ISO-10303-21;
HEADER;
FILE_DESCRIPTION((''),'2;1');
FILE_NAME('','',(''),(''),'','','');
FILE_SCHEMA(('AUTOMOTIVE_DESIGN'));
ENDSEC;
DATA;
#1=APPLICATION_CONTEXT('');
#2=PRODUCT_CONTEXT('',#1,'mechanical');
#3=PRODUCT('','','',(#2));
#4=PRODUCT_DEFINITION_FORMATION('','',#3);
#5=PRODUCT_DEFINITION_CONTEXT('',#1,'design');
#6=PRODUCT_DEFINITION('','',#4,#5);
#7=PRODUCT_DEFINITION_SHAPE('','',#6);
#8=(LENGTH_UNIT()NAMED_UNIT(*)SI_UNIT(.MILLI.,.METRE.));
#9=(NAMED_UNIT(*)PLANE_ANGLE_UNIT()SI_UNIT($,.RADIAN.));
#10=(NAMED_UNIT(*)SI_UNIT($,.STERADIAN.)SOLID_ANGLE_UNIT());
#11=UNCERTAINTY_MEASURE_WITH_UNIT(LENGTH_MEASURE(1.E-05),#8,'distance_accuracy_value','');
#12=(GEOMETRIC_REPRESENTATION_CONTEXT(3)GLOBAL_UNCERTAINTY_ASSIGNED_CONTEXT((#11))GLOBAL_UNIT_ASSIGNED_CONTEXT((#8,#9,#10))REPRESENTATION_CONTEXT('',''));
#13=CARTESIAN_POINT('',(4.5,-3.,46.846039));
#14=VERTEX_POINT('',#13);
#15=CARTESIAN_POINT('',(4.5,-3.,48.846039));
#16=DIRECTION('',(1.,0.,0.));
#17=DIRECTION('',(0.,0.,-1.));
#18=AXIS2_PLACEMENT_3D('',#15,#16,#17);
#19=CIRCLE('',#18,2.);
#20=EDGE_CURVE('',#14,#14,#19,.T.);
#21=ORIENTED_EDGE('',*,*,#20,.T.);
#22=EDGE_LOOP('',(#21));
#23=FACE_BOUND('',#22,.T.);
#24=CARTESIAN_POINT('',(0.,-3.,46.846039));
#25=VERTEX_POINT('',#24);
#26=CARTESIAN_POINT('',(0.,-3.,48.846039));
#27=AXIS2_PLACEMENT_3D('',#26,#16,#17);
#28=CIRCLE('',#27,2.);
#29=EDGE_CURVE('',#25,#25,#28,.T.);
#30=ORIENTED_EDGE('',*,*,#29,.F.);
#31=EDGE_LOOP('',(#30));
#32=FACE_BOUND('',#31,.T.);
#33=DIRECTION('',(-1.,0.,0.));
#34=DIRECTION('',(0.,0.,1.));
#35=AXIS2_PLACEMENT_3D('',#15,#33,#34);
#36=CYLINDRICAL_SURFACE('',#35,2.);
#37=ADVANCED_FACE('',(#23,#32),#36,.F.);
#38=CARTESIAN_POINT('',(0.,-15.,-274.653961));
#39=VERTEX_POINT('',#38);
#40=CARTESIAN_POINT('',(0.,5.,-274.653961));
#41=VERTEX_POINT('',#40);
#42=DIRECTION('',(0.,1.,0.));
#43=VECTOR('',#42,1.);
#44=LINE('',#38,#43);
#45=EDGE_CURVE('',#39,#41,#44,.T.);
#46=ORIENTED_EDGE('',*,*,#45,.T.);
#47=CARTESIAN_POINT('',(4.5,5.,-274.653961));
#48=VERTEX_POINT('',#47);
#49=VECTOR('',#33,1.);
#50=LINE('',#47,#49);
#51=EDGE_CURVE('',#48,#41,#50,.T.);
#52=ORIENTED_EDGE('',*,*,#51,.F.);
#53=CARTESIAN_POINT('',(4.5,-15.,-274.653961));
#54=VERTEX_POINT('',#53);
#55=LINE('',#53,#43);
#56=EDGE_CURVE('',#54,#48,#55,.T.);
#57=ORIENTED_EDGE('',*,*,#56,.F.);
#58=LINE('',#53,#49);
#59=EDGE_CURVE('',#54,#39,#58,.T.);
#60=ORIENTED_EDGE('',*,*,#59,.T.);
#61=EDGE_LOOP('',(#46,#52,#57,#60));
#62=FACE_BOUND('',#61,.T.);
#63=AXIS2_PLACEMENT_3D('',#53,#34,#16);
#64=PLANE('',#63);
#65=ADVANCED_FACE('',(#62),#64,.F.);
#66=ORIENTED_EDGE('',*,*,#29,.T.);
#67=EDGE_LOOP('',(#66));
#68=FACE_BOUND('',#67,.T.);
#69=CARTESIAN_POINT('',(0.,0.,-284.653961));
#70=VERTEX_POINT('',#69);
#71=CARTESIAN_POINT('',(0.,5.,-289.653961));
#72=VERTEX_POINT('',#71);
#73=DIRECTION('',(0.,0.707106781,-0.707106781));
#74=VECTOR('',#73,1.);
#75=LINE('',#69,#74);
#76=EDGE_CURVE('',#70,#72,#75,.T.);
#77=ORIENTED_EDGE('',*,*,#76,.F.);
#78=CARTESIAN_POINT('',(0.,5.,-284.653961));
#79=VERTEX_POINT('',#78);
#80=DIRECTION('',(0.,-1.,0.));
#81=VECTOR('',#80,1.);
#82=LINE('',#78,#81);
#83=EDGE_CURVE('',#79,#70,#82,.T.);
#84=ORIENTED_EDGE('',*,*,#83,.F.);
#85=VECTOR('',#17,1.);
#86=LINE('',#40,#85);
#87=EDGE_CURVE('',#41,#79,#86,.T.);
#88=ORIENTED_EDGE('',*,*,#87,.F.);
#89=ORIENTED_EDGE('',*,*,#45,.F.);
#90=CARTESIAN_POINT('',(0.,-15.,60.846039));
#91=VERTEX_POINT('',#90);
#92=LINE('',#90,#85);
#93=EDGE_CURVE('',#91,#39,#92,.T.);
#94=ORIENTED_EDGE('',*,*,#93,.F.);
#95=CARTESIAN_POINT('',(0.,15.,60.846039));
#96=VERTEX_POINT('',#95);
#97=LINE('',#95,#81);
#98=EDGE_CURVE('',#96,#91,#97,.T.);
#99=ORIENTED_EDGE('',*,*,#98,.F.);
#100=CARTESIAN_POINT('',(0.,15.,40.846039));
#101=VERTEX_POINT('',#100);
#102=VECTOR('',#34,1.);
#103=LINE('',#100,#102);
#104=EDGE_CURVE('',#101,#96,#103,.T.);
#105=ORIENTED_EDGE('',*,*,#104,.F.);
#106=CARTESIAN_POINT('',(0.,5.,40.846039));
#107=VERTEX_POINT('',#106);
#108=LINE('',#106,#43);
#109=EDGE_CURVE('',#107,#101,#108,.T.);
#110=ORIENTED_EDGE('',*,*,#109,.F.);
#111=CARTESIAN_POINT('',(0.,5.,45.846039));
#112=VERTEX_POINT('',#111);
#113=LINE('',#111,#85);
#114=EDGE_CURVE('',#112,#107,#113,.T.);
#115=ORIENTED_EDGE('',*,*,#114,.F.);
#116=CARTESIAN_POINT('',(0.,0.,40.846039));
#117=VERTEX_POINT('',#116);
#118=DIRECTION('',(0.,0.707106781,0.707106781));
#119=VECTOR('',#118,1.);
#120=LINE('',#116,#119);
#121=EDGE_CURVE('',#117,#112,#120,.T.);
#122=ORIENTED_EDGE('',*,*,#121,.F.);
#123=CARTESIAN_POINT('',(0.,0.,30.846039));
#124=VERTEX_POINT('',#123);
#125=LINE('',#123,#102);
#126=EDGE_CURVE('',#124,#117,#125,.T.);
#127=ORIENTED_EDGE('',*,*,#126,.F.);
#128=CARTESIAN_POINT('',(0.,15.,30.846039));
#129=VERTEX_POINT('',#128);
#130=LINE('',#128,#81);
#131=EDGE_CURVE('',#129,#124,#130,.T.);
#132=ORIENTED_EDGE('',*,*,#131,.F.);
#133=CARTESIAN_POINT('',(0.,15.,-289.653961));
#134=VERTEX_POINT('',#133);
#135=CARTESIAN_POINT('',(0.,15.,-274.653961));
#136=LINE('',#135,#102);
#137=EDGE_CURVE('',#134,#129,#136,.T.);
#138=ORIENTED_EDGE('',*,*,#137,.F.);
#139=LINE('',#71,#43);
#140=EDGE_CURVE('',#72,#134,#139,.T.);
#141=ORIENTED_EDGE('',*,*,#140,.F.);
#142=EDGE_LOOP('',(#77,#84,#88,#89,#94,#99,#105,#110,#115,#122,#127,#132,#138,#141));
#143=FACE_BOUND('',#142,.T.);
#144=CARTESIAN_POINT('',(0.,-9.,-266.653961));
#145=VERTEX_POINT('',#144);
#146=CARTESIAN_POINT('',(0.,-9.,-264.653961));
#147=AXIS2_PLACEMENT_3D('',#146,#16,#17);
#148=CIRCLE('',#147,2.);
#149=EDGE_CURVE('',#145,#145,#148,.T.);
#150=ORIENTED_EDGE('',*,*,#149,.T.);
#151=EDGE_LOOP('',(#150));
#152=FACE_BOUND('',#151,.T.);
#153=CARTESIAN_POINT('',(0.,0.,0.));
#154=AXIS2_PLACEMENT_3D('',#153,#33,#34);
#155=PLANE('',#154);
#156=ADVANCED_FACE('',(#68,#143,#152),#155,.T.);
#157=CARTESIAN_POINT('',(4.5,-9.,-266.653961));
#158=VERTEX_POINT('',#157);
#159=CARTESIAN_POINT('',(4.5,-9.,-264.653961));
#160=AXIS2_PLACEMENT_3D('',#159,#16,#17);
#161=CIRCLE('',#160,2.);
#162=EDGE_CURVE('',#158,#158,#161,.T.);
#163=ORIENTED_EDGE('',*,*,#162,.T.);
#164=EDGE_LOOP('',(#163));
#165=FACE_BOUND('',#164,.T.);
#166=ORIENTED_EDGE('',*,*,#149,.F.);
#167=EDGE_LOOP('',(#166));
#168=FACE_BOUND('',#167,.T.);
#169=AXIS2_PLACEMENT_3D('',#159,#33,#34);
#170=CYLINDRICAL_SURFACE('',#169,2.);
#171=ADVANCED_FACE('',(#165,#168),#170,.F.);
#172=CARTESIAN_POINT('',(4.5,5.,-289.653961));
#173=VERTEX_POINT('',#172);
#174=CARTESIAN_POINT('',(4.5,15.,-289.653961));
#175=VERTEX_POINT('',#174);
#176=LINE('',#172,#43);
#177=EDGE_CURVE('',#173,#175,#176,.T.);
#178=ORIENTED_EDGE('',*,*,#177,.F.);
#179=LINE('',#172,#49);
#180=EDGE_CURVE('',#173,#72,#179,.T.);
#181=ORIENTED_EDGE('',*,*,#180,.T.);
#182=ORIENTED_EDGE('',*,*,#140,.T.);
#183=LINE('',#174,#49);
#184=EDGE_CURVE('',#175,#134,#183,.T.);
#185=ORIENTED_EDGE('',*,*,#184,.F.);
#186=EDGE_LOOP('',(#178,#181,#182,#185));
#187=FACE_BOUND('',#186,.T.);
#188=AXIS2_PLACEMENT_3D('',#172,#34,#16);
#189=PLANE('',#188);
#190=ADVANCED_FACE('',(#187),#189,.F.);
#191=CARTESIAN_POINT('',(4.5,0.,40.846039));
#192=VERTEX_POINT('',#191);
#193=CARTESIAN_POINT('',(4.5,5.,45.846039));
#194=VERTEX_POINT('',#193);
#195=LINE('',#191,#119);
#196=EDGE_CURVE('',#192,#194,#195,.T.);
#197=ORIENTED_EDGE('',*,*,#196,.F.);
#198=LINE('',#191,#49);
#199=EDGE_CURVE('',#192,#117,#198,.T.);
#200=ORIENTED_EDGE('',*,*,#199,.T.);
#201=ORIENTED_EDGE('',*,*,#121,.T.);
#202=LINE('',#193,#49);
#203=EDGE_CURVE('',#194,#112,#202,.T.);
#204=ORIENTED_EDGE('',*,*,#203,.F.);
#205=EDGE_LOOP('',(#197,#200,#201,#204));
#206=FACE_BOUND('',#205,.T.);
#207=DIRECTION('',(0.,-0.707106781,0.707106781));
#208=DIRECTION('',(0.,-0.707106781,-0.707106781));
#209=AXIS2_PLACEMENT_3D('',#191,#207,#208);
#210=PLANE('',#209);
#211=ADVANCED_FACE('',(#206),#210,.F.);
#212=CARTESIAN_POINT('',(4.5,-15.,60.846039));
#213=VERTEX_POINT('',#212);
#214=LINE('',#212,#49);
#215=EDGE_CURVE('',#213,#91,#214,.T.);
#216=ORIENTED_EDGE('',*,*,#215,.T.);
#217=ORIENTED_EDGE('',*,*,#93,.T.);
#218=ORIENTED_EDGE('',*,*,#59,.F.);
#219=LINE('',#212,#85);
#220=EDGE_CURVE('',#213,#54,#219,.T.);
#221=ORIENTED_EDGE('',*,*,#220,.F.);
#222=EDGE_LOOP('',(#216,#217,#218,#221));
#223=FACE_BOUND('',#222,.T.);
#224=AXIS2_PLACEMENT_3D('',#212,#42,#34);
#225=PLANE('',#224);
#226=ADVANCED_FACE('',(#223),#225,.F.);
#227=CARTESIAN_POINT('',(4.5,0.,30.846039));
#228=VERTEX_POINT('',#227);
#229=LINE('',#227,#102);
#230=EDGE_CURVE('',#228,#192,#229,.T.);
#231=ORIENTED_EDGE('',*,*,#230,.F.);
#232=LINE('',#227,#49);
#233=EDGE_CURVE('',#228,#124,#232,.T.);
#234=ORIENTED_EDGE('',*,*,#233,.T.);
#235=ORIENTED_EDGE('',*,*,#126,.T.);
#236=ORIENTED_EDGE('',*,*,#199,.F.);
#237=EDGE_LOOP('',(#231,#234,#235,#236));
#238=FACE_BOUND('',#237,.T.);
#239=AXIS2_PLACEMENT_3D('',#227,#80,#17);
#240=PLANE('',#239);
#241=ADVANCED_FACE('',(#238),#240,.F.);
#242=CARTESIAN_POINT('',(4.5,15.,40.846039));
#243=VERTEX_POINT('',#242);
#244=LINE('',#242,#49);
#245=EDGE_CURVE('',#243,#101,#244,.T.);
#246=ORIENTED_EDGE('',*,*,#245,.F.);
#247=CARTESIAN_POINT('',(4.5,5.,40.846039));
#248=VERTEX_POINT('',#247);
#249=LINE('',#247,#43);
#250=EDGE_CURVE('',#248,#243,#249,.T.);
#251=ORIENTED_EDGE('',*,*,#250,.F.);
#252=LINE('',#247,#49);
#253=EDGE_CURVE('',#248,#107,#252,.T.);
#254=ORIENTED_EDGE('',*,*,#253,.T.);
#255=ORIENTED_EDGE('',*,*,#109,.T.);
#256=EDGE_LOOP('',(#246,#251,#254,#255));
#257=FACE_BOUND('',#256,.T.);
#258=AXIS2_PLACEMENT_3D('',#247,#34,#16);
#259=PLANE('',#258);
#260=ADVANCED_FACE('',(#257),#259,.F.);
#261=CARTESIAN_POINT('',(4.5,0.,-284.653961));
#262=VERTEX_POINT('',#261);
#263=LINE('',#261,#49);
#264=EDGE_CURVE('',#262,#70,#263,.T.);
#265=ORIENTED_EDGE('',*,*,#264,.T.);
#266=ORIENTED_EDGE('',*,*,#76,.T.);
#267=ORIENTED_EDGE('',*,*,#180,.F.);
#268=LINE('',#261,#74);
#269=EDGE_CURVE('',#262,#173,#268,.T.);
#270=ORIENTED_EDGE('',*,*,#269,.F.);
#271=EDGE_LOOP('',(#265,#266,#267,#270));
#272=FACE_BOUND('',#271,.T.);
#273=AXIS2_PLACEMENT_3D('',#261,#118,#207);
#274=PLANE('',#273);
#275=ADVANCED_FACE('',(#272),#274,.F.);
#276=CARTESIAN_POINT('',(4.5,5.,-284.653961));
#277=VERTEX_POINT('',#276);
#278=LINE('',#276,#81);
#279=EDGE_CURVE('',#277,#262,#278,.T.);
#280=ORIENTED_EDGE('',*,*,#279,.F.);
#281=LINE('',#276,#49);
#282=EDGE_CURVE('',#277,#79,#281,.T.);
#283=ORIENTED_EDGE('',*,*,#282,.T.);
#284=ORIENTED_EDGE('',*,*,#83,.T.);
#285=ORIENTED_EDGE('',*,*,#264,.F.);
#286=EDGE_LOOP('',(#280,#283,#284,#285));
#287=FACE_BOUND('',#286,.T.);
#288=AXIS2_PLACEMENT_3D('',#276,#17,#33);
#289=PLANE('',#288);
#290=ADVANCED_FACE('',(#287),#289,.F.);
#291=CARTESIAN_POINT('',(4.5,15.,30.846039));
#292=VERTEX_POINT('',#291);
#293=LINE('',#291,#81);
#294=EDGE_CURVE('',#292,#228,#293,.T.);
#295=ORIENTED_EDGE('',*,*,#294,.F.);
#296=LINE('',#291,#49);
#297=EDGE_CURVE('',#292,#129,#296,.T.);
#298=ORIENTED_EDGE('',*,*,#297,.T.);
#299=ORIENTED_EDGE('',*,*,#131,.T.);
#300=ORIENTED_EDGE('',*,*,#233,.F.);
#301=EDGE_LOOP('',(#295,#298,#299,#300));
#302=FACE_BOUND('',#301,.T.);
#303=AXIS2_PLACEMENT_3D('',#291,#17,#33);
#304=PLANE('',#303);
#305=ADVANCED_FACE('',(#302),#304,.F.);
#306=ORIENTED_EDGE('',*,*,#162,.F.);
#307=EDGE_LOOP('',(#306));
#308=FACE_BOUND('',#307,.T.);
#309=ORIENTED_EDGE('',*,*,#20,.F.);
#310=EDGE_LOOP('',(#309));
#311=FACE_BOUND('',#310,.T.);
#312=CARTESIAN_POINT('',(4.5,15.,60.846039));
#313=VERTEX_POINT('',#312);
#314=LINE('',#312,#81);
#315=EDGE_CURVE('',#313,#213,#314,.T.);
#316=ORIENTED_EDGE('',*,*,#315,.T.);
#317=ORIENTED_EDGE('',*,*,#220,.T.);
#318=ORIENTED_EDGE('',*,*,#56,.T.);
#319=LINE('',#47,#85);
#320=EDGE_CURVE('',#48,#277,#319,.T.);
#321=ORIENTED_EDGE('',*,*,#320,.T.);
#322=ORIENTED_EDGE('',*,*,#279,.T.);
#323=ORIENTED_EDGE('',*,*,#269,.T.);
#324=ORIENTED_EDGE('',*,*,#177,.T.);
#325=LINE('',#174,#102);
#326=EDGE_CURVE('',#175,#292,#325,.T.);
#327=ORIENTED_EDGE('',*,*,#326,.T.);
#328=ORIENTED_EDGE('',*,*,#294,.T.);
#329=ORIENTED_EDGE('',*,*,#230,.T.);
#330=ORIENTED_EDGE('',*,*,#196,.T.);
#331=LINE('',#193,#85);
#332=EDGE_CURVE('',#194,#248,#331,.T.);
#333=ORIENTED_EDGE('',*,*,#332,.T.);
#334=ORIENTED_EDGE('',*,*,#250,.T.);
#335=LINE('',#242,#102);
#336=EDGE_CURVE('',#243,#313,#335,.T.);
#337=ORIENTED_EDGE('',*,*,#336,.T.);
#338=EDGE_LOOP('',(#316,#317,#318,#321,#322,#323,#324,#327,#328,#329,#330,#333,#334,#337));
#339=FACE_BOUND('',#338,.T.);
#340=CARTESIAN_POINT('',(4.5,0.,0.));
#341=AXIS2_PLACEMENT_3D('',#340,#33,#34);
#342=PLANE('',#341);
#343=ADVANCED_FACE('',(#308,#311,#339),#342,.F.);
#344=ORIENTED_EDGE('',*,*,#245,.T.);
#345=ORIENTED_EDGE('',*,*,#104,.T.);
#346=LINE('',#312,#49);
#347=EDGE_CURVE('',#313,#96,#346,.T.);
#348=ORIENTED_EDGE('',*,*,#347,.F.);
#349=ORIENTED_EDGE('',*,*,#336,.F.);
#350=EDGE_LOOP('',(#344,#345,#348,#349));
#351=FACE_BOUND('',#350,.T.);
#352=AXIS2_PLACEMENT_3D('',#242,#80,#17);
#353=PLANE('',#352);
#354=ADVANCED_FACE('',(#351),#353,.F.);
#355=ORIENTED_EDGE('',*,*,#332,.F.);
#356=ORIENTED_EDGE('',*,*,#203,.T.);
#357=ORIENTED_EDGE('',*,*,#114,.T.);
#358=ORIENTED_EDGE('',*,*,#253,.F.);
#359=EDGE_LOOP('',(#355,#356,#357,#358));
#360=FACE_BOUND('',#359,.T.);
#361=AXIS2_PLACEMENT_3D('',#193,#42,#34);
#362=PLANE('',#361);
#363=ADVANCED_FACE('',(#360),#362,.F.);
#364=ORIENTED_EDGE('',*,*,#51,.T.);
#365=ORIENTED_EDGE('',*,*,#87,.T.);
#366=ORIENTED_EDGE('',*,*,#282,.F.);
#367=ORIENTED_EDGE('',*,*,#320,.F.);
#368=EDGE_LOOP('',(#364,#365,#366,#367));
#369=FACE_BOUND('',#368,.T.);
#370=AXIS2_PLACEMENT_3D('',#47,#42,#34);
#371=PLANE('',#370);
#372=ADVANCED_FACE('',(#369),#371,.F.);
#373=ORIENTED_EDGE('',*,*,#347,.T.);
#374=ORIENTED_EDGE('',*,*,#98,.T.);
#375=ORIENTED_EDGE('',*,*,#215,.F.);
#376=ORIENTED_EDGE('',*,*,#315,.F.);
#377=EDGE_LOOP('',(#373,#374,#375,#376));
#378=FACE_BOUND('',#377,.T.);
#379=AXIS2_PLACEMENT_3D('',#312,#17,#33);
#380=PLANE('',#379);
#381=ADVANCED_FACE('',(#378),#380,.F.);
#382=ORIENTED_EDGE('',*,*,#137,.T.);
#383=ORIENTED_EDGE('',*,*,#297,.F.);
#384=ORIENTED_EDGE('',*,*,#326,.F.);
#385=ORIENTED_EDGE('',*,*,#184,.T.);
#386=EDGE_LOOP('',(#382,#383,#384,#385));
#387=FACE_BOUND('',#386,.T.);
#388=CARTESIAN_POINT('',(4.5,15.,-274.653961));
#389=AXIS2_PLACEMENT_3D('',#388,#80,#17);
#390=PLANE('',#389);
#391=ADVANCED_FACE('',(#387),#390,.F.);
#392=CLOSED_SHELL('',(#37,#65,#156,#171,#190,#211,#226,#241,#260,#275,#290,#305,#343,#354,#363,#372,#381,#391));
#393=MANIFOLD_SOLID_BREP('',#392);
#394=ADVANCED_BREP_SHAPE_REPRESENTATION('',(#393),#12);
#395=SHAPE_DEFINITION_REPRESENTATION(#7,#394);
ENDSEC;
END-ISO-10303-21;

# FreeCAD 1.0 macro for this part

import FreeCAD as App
import Part
import Sketcher

doc = App.newDocument("Part")
params = doc.addObject("Spreadsheet::Sheet", "Params")
for row, (alias, value) in enumerate([
    ("sketch1_diameter", "4 mm"),
    ("sketch1_width", "10 mm"),
    ("sketch1_width2", "30 mm"),
    ("sketch1_width3", "5 mm"),
    ("sketch1_height", "335.5 mm"),
    ("pad1_length", "4.5 mm"),
], start=1):
    params.set(f"A{row}", alias)
    params.set(f"B{row}", "=" + value)
    params.setAlias(f"B{row}", alias)

body = doc.addObject("PartDesign::Body", "Body")

# Sketch on YZ plane
sketch1 = doc.addObject("Sketcher::SketchObject", "Sketch")
body.addObject(sketch1)
sketch1.AttachmentSupport = (doc.YZ_Plane, [""])
sketch1.MapMode = "FlatFace"
sketch1.addGeometry([
    Part.LineSegment(App.Vector(0, 30.8, 0), App.Vector(0, 40.8, 0)),  # 0
    Part.LineSegment(App.Vector(0, 40.8, 0), App.Vector(5, 45.8, 0)),  # 1
    Part.LineSegment(App.Vector(5, 45.8, 0), App.Vector(5, 40.8, 0)),  # 2
    Part.LineSegment(App.Vector(5, 40.8, 0), App.Vector(15, 40.8, 0)),  # 3
    Part.LineSegment(App.Vector(15, 40.8, 0), App.Vector(15, 60.8, 0)),  # 4
    Part.LineSegment(App.Vector(15, 60.8, 0), App.Vector(-15, 60.8, 0)),  # 5
    Part.LineSegment(App.Vector(-15, 60.8, 0), App.Vector(-15, -274.7, 0)),  # 6
    Part.LineSegment(App.Vector(-15, -274.7, 0), App.Vector(5, -274.7, 0)),  # 7
    Part.LineSegment(App.Vector(5, -274.7, 0), App.Vector(5, -284.7, 0)),  # 8
    Part.LineSegment(App.Vector(5, -284.7, 0), App.Vector(0, -284.7, 0)),  # 9
    Part.LineSegment(App.Vector(0, -284.7, 0), App.Vector(5, -289.7, 0)),  # 10
    Part.LineSegment(App.Vector(5, -289.7, 0), App.Vector(15, -289.7, 0)),  # 11
    Part.LineSegment(App.Vector(15, -289.7, 0), App.Vector(15, 30.8, 0)),  # 12
    Part.LineSegment(App.Vector(15, 30.8, 0), App.Vector(0, 30.8, 0)),  # 13
    Part.Circle(App.Vector(-9, -264.7, 0), App.Vector(0, 0, 1), 2),  # 14
    Part.Circle(App.Vector(-3, 48.8, 0), App.Vector(0, 0, 1), 2),  # 15
], False)
sketch1.addConstraint([
    Sketcher.Constraint("Coincident", 0, 2, 1, 1),
    Sketcher.Constraint("Coincident", 1, 2, 2, 1),
    Sketcher.Constraint("Coincident", 2, 2, 3, 1),
    Sketcher.Constraint("Coincident", 3, 2, 4, 1),
    Sketcher.Constraint("Coincident", 4, 2, 5, 1),
    Sketcher.Constraint("Coincident", 5, 2, 6, 1),
    Sketcher.Constraint("Coincident", 6, 2, 7, 1),
    Sketcher.Constraint("Coincident", 7, 2, 8, 1),
    Sketcher.Constraint("Coincident", 8, 2, 9, 1),
    Sketcher.Constraint("Coincident", 9, 2, 10, 1),
    Sketcher.Constraint("Coincident", 10, 2, 11, 1),
    Sketcher.Constraint("Coincident", 11, 2, 12, 1),
    Sketcher.Constraint("Coincident", 12, 2, 13, 1),
    Sketcher.Constraint("Coincident", 13, 2, 0, 1),
    Sketcher.Constraint("Vertical", 0),
    Sketcher.Constraint("Vertical", 2),
    Sketcher.Constraint("Horizontal", 3),
    Sketcher.Constraint("Vertical", 4),
    Sketcher.Constraint("Horizontal", 5),
    Sketcher.Constraint("Vertical", 6),
    Sketcher.Constraint("Horizontal", 7),
    Sketcher.Constraint("Vertical", 8),
    Sketcher.Constraint("Horizontal", 9),
    Sketcher.Constraint("Horizontal", 11),
    Sketcher.Constraint("Vertical", 12),
    Sketcher.Constraint("Horizontal", 13),
    Sketcher.Constraint("Equal", 14, 15),
    Sketcher.Constraint("PointOnObject", 0, 2, -2),
    Sketcher.Constraint("PointOnObject", 9, 2, -2),
    Sketcher.Constraint("Perpendicular", 1, 10),
    Sketcher.Constraint("Horizontal", 0, 2, 2, 2),
    Sketcher.Constraint("Vertical", 2, 2, 7, 2),
    Sketcher.Constraint("Vertical", 8, 2, 10, 2),
    Sketcher.Constraint("Vertical", 4, 2, 11, 2),
    Sketcher.Constraint("Equal", 11, 0),
    Sketcher.Constraint("Equal", 9, 2),
    Sketcher.Constraint("Equal", 7, 4),
    Sketcher.Constraint("Equal", 0, 8),
    Sketcher.Constraint("Diameter", 14, 4.0),
    Sketcher.Constraint("DistanceX", 3, 1, 3, 2, 10.0),
    Sketcher.Constraint("DistanceX", 5, 2, 5, 1, 30.0),
    Sketcher.Constraint("DistanceX", 9, 2, 9, 1, 5.0),
    Sketcher.Constraint("DistanceY", 6, 2, 6, 1, 335.5),
    Sketcher.Constraint("DistanceX", 14, 3, -1, 1, 9.0),
    Sketcher.Constraint("DistanceX", 15, 3, -1, 1, 3.0),
    Sketcher.Constraint("DistanceY", 0, 2, 15, 3, 8.0),
    Sketcher.Constraint("DistanceY", 6, 2, 14, 3, 10.0),
    Sketcher.Constraint("DistanceY", 14, 3, -1, 1, 264.653961),
])
sketch1.setExpression("Constraints[38]", "Params.sketch1_diameter")
sketch1.setExpression("Constraints[39]", "Params.sketch1_width")
sketch1.setExpression("Constraints[40]", "Params.sketch1_width2")
sketch1.setExpression("Constraints[41]", "Params.sketch1_width3")
sketch1.setExpression("Constraints[42]", "Params.sketch1_height")
pad1 = doc.addObject("PartDesign::Pad", "Pad")
body.addObject(pad1)
pad1.Profile = sketch1
pad1.setExpression("Length", "Params.pad1_length")

doc.recompute()
